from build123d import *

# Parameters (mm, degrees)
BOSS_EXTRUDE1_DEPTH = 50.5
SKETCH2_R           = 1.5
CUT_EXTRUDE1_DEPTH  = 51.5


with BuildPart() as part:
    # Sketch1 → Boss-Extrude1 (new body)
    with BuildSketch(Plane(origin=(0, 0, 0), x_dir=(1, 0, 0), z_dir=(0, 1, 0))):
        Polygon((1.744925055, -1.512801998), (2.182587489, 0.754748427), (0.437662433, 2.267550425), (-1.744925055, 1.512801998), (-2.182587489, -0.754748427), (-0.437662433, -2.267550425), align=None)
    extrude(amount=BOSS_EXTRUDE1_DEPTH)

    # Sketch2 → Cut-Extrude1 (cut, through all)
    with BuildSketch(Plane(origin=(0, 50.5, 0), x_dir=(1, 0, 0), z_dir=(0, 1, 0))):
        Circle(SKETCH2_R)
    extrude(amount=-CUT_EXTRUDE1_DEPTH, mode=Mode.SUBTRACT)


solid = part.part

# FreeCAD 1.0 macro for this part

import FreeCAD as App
import Part
import Sketcher
Q = App.Units.Quantity


def add_polygon(sketch, points):
    """Adds a closed chain of lines whose ends are joined by coincident constraints."""
    first, n = sketch.GeometryCount, len(points)
    for a, b in zip(points, points[1:] + points[:1]):
        sketch.addGeometry(Part.LineSegment(App.Vector(*a, 0), App.Vector(*b, 0)), False)
    for i in range(n):
        sketch.addConstraint(Sketcher.Constraint("Coincident", first + i, 2, first + (i + 1) % n, 1))

doc = App.newDocument("Part")
params = doc.addObject("Spreadsheet::Sheet", "Params")
for row, (alias, value) in enumerate([
    ("pad1_length", "50.5 mm"),
    ("sketch2_diameter", "3 mm"),
], start=1):
    params.set(f"A{row}", alias)
    params.set(f"B{row}", "=" + value)
    params.setAlias(f"B{row}", alias)

body = doc.addObject("PartDesign::Body", "Body")

sketch1 = body.newObject("Sketcher::SketchObject", "Sketch")
sketch1.AttachmentSupport = (doc.getObject("XZ_Plane"), [""])
sketch1.MapMode = "FlatFace"
add_polygon(sketch1, [(1.7, 1.5), (2.2, -0.8), (0.4, -2.3), (-1.7, -1.5), (-2.2, 0.8), (-0.4, 2.3)])
sketch1.addConstraint([
    Sketcher.Constraint("Symmetric", 0, 2, 3, 2, -1, 1),
    Sketcher.Constraint("Symmetric", 1, 2, 4, 2, -1, 1),
    Sketcher.Constraint("Symmetric", 2, 2, 5, 2, -1, 1),
    Sketcher.Constraint("Equal", 0, 1),
    Sketcher.Constraint("Equal", 1, 2),
    Sketcher.Constraint("Distance", 0, Q("2.309401 mm")),
    Sketcher.Constraint("DistanceY", 2, 2, -1, 1, Q("1.512802 mm")),
    Sketcher.Constraint("DistanceY", 1, 2, 0, 2, Q("1.512802 mm")),
    Sketcher.Constraint("DistanceY", 1, 2, 3, 2, Q("3.022299 mm")),
])
pad1 = body.newObject("PartDesign::Pad", "Pad")
pad1.Profile = sketch1
pad1.setExpression("Length", "Params.pad1_length")
pad1.Reversed = True

sketch2 = body.newObject("Sketcher::SketchObject", "Sketch001")
sketch2.AttachmentSupport = (doc.getObject("XZ_Plane"), [""])
sketch2.MapMode = "FlatFace"
sketch2.AttachmentOffset = App.Placement(App.Vector(0, 0, -50.5), App.Rotation())
sketch2.addGeometry(Part.Circle(App.Vector(0, 0, 0), App.Vector(0, 0, 1), 1.5), False)
sketch2.addConstraint([
    Sketcher.Constraint("Coincident", 0, 3, -1, 1),
    Sketcher.Constraint("Diameter", 0, Q("3 mm")),
])
sketch2.setExpression("Constraints[1]", "Params.sketch2_diameter")
pocket1 = body.newObject("PartDesign::Pocket", "Pocket")
pocket1.Profile = sketch2
pocket1.Type = "ThroughAll"
pocket1.Reversed = True

doc.recompute()
